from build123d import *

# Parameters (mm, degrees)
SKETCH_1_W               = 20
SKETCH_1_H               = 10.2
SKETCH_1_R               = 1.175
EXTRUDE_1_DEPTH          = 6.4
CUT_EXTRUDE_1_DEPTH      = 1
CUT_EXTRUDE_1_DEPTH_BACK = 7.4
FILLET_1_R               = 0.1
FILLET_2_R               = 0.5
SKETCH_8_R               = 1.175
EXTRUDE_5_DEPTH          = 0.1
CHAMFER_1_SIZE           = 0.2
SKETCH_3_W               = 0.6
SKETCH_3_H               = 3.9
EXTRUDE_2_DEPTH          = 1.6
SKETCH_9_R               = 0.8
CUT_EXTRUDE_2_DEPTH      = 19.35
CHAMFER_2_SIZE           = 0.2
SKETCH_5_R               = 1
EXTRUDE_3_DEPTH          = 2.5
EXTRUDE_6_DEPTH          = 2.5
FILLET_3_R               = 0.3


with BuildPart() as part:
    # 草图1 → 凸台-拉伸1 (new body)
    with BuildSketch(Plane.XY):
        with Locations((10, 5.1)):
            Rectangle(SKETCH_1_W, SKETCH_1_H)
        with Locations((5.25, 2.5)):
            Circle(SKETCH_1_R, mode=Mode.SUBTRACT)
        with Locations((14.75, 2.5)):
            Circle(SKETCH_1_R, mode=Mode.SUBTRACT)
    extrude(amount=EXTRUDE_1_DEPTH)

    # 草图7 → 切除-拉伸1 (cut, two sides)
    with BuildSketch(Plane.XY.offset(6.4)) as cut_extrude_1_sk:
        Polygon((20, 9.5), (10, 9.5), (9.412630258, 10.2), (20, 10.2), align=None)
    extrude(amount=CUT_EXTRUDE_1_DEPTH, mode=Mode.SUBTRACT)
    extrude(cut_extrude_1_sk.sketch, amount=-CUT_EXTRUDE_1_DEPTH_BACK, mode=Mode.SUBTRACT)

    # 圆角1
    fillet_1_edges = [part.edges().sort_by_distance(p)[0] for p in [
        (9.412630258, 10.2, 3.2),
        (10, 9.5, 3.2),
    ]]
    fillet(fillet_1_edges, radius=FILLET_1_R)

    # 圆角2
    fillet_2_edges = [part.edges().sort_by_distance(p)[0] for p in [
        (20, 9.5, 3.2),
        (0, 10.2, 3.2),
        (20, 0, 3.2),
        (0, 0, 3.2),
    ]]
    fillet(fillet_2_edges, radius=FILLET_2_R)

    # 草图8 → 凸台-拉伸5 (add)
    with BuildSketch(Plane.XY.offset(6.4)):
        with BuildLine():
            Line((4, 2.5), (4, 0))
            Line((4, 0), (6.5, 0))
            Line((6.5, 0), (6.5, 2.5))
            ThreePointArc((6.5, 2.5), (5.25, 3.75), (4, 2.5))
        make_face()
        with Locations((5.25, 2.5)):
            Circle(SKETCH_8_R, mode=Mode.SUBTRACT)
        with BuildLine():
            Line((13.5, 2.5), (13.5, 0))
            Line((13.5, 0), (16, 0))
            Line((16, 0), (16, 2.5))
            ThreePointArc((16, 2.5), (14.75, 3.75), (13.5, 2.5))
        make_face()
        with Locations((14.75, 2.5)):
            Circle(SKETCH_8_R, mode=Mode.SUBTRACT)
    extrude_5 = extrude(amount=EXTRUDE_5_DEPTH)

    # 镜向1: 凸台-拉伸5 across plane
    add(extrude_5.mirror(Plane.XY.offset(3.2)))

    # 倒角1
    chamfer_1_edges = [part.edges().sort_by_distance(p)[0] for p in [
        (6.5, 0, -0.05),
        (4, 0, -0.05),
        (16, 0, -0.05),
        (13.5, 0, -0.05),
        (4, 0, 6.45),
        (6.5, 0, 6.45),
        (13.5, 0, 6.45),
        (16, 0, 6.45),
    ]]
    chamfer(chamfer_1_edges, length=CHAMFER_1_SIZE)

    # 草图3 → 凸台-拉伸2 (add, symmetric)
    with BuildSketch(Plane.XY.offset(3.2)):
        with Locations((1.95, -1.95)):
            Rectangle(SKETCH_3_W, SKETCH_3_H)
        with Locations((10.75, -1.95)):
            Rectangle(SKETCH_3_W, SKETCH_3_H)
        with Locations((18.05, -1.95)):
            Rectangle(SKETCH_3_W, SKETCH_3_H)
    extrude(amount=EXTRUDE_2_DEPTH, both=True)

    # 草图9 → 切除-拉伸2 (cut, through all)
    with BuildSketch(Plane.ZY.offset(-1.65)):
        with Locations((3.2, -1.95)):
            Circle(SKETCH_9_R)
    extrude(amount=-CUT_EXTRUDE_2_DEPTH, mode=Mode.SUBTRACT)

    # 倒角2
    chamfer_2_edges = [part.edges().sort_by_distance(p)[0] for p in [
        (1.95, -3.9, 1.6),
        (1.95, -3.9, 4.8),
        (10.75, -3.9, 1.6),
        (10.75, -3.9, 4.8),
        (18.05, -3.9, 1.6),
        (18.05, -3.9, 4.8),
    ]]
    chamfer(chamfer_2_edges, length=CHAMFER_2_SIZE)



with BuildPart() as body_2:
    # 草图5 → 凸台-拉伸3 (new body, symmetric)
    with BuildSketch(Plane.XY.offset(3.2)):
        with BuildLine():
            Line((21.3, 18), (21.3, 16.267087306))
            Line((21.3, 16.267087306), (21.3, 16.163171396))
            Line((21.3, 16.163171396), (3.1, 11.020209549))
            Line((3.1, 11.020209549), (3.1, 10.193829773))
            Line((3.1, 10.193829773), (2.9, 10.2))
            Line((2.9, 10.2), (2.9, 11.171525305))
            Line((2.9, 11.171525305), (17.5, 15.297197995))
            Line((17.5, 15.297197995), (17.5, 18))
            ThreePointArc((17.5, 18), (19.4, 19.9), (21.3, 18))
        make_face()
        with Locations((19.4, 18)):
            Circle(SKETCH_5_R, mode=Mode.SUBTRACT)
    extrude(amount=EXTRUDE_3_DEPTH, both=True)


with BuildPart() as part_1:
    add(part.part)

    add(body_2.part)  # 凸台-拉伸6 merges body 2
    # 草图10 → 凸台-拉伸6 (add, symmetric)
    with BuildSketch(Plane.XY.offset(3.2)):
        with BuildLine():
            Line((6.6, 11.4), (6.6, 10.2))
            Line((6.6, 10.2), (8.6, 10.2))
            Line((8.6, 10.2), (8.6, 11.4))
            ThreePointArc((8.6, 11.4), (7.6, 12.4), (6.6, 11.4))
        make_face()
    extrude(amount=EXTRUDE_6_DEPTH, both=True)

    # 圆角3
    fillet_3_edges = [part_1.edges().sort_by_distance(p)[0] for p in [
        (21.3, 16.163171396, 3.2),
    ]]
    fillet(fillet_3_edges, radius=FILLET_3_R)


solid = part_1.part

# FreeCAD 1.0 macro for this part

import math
import FreeCAD as App
import Part
import Sketcher
Q = App.Units.Quantity


def edges_at(feature, points):
    """Names of the edges that pass closest to the given points."""
    edges = feature.Shape.Edges
    near = lambda p: min(range(len(edges)), key=lambda i: edges[i].distToShape(Part.Vertex(*p))[0])
    return sorted({f"Edge{near(p) + 1}" for p in points})


def add_polygon(sketch, points):
    """Adds a closed chain of lines whose ends are joined by coincident constraints."""
    first, n = sketch.GeometryCount, len(points)
    for a, b in zip(points, points[1:] + points[:1]):
        sketch.addGeometry(Part.LineSegment(App.Vector(*a, 0), App.Vector(*b, 0)), False)
    for i in range(n):
        sketch.addConstraint(Sketcher.Constraint("Coincident", first + i, 2, first + (i + 1) % n, 1))

doc = App.newDocument("Part")
params = doc.addObject("Spreadsheet::Sheet", "Params")
for row, (alias, value) in enumerate([
    ("sketch1_diameter", "2.35 mm"),
    ("sketch1_width", "20 mm"),
    ("sketch1_height", "10.2 mm"),
    ("pad1_length", "6.4 mm"),
    ("sketch2_width", "10 mm"),
    ("sketch2_height", "0.7 mm"),
    ("fillet_radius", "0.1 mm"),
    ("fillet2_radius", "0.5 mm"),
    ("sketch3_diameter", "2.35 mm"),
    ("sketch3_radius", "1.25 mm"),
    ("pad2_length", "0.1 mm"),
    ("chamfer_size", "0.2 mm"),
    ("sketch4_width", "0.6 mm"),
    ("sketch4_height", "3.9 mm"),
    ("pad3_length", "3.2 mm"),
    ("sketch5_diameter", "1.6 mm"),
    ("chamfer2_size", "0.2 mm"),
    ("sketch6_diameter", "2 mm"),
    ("sketch6_radius", "1.9 mm"),
    ("pad4_length", "5 mm"),
    ("sketch7_radius", "1 mm"),
    ("sketch7_height", "1.2 mm"),
    ("pad5_length", "5 mm"),
    ("fillet3_radius", "0.3 mm"),
], start=1):
    params.set(f"A{row}", alias)
    params.set(f"B{row}", "=" + value)
    params.setAlias(f"B{row}", alias)

body = doc.addObject("PartDesign::Body", "Body")

sketch1 = body.newObject("Sketcher::SketchObject", "Sketch")
sketch1.AttachmentSupport = (doc.getObject("XY_Plane"), [""])
sketch1.MapMode = "FlatFace"
add_polygon(sketch1, [(0, 10.2), (0, 0), (20, 0), (20, 10.2)])
sketch1.addGeometry(Part.Circle(App.Vector(5.25, 2.5, 0), App.Vector(0, 0, 1), 1.175), False)
sketch1.addGeometry(Part.Circle(App.Vector(14.75, 2.5, 0), App.Vector(0, 0, 1), 1.175), False)
sketch1.addConstraint(Sketcher.Constraint("Vertical", 0))
sketch1.addConstraint(Sketcher.Constraint("Horizontal", 1))
sketch1.addConstraint(Sketcher.Constraint("Vertical", 2))
sketch1.addConstraint(Sketcher.Constraint("Horizontal", 3))
sketch1.addConstraint(Sketcher.Constraint("Coincident", 0, 2, -1, 1))
sketch1.addConstraint(Sketcher.Constraint("Equal", 4, 5))
sketch1.addConstraint(Sketcher.Constraint("Horizontal", 4, 3, 5, 3))
sketch1.addConstraint(Sketcher.Constraint("Diameter", 4, 2.35))
sketch1.addConstraint(Sketcher.Constraint("DistanceX", 1, 1, 1, 2, 20.0))
sketch1.addConstraint(Sketcher.Constraint("DistanceY", 0, 2, 0, 1, 10.2))
sketch1.addConstraint(Sketcher.Constraint("DistanceY", -1, 1, 4, 3, 2.5))
sketch1.addConstraint(Sketcher.Constraint("DistanceX", 4, 3, 5, 3, 9.5))
sketch1.addConstraint(Sketcher.Constraint("DistanceX", -1, 1, 4, 3, 5.25))
sketch1.setExpression("Constraints[11]", "Params.sketch1_diameter")
sketch1.setExpression("Constraints[12]", "Params.sketch1_width")
sketch1.setExpression("Constraints[13]", "Params.sketch1_height")
pad1 = body.newObject("PartDesign::Pad", "Pad")
pad1.Profile = sketch1
pad1.setExpression("Length", "Params.pad1_length")

sketch2 = body.newObject("Sketcher::SketchObject", "Sketch001")
sketch2.AttachmentSupport = (doc.getObject("XY_Plane"), [""])
sketch2.MapMode = "FlatFace"
sketch2.AttachmentOffset = App.Placement(App.Vector(0, 0, 6.4), App.Rotation())
add_polygon(sketch2, [(10, 9.5), (20, 9.5), (20, 10.2), (9.41263, 10.2)])
sketch2.addConstraint(Sketcher.Constraint("Horizontal", 0))
sketch2.addConstraint(Sketcher.Constraint("Vertical", 1))
sketch2.addConstraint(Sketcher.Constraint("Horizontal", 2))
sketch2.addConstraint(Sketcher.Constraint("DistanceX", 0, 1, 0, 2, 10.0))
sketch2.addConstraint(Sketcher.Constraint("Angle", 3, Q("-50 deg")))
sketch2.addConstraint(Sketcher.Constraint("DistanceY", 1, 1, 1, 2, 0.7))
sketch2.addConstraint(Sketcher.Constraint("DistanceX", -1, 1, 0, 2, 20.0))
sketch2.addConstraint(Sketcher.Constraint("DistanceY", -1, 1, 0, 2, 9.5))
sketch2.setExpression("Constraints[7]", "Params.sketch2_width")
sketch2.setExpression("Constraints[9]", "Params.sketch2_height")
pocket1 = body.newObject("PartDesign::Pocket", "Pocket")
pocket1.Profile = sketch2
pocket1.Type = "ThroughAll"
pocket1.Midplane = True
doc.recompute()

fillet = body.newObject("PartDesign::Fillet", "Fillet")
fillet.Base = (pocket1, edges_at(pocket1, [(9.413, 10.2, 3.2), (10, 9.5, 3.2)]))
fillet.setExpression("Radius", "Params.fillet_radius")
doc.recompute()

fillet2 = body.newObject("PartDesign::Fillet", "Fillet001")
fillet2.Base = (fillet, edges_at(fillet, [
    (20, 9.5, 3.2),
    (0, 10.2, 3.2),
    (20, 0, 3.2),
    (0, 0, 3.2),
]))
fillet2.setExpression("Radius", "Params.fillet2_radius")

sketch3 = body.newObject("Sketcher::SketchObject", "Sketch002")
sketch3.AttachmentSupport = (doc.getObject("XY_Plane"), [""])
sketch3.MapMode = "FlatFace"
sketch3.AttachmentOffset = App.Placement(App.Vector(0, 0, 6.4), App.Rotation())
sketch3.addGeometry(Part.LineSegment(App.Vector(4, 2.5, 0), App.Vector(4, 0, 0)), False)
sketch3.addGeometry(Part.LineSegment(App.Vector(4, 0, 0), App.Vector(6.5, 0, 0)), False)
sketch3.addGeometry(Part.LineSegment(App.Vector(6.5, 0, 0), App.Vector(6.5, 2.5, 0)), False)
sketch3.addGeometry(Part.ArcOfCircle(Part.Circle(App.Vector(5.25, 2.5, 0), App.Vector(0, 0, 1), 1.25), math.radians(0), math.radians(180)), False)
sketch3.addGeometry(Part.Circle(App.Vector(5.25, 2.5, 0), App.Vector(0, 0, 1), 1.175), False)
sketch3.addGeometry(Part.LineSegment(App.Vector(13.5, 2.5, 0), App.Vector(13.5, 0, 0)), False)
sketch3.addGeometry(Part.LineSegment(App.Vector(13.5, 0, 0), App.Vector(16, 0, 0)), False)
sketch3.addGeometry(Part.LineSegment(App.Vector(16, 0, 0), App.Vector(16, 2.5, 0)), False)
sketch3.addGeometry(Part.ArcOfCircle(Part.Circle(App.Vector(14.75, 2.5, 0), App.Vector(0, 0, 1), 1.25), math.radians(0), math.radians(180)), False)
sketch3.addGeometry(Part.Circle(App.Vector(14.75, 2.5, 0), App.Vector(0, 0, 1), 1.175), False)
sketch3.addConstraint(Sketcher.Constraint("Coincident", 0, 2, 1, 1))
sketch3.addConstraint(Sketcher.Constraint("Coincident", 1, 2, 2, 1))
sketch3.addConstraint(Sketcher.Constraint("Tangent", 2, 2, 3, 1))
sketch3.addConstraint(Sketcher.Constraint("Tangent", 3, 2, 0, 1))
sketch3.addConstraint(Sketcher.Constraint("Coincident", 5, 2, 6, 1))
sketch3.addConstraint(Sketcher.Constraint("Coincident", 6, 2, 7, 1))
sketch3.addConstraint(Sketcher.Constraint("Tangent", 7, 2, 8, 1))
sketch3.addConstraint(Sketcher.Constraint("Tangent", 8, 2, 5, 1))
sketch3.addConstraint(Sketcher.Constraint("Vertical", 0))
sketch3.addConstraint(Sketcher.Constraint("Horizontal", 1))
sketch3.addConstraint(Sketcher.Constraint("Vertical", 2))
sketch3.addConstraint(Sketcher.Constraint("Vertical", 5))
sketch3.addConstraint(Sketcher.Constraint("Horizontal", 6))
sketch3.addConstraint(Sketcher.Constraint("Vertical", 7))
sketch3.addConstraint(Sketcher.Constraint("Coincident", 4, 3, 3, 3))
sketch3.addConstraint(Sketcher.Constraint("Coincident", 9, 3, 8, 3))
sketch3.addConstraint(Sketcher.Constraint("Equal", 3, 8))
sketch3.addConstraint(Sketcher.Constraint("Equal", 4, 9))
sketch3.addConstraint(Sketcher.Constraint("PointOnObject", 0, 2, -1))
sketch3.addConstraint(Sketcher.Constraint("PointOnObject", 5, 2, -1))
sketch3.addConstraint(Sketcher.Constraint("Horizontal", 4, 3, 8, 3))
sketch3.addConstraint(Sketcher.Constraint("Equal", 6, 0))
sketch3.addConstraint(Sketcher.Constraint("Diameter", 4, 2.35))
sketch3.addConstraint(Sketcher.Constraint("Radius", 3, 1.25))
sketch3.addConstraint(Sketcher.Constraint("DistanceX", -1, 1, 0, 2, 4.0))
sketch3.addConstraint(Sketcher.Constraint("DistanceX", -1, 1, 6, 2, 16.0))
sketch3.setExpression("Constraints[22]", "Params.sketch3_diameter")
sketch3.setExpression("Constraints[23]", "Params.sketch3_radius")
pad2 = body.newObject("PartDesign::Pad", "Pad001")
pad2.Profile = sketch3
pad2.setExpression("Length", "Params.pad2_length")
doc.recompute()

datumplane = body.newObject("PartDesign::Plane", "DatumPlane")
datumplane.AttachmentSupport = (doc.getObject("XY_Plane"), [""])
datumplane.MapMode = "FlatFace"
datumplane.AttachmentOffset = App.Placement(App.Vector(0, 0, 3.2), App.Rotation())
mirrored = body.newObject("PartDesign::Mirrored", "Mirrored")
mirrored.Originals = [pad2]
mirrored.MirrorPlane = (datumplane, [""])
body.Tip = mirrored
doc.recompute()

chamfer = body.newObject("PartDesign::Chamfer", "Chamfer")
chamfer.Base = (mirrored, edges_at(mirrored, [
    (6.5, 0, -0.05),
    (4, 0, -0.05),
    (16, 0, -0.05),
    (13.5, 0, -0.05),
    (4, 0, 6.45),
    (6.5, 0, 6.45),
    (13.5, 0, 6.45),
    (16, 0, 6.45),
]))
chamfer.setExpression("Size", "Params.chamfer_size")

sketch4 = body.newObject("Sketcher::SketchObject", "Sketch003")
sketch4.AttachmentSupport = (doc.getObject("XY_Plane"), [""])
sketch4.MapMode = "FlatFace"
sketch4.AttachmentOffset = App.Placement(App.Vector(0, 0, 3.2), App.Rotation())
add_polygon(sketch4, [(1.65, 0), (1.65, -3.9), (2.25, -3.9), (2.25, 0)])
add_polygon(sketch4, [(10.45, 0), (10.45, -3.9), (11.05, -3.9), (11.05, 0)])
add_polygon(sketch4, [(17.75, 0), (17.75, -3.9), (18.35, -3.9), (18.35, 0)])
sketch4.addConstraint(Sketcher.Constraint("Vertical", 0))
sketch4.addConstraint(Sketcher.Constraint("Horizontal", 1))
sketch4.addConstraint(Sketcher.Constraint("Vertical", 2))
sketch4.addConstraint(Sketcher.Constraint("Horizontal", 3))
sketch4.addConstraint(Sketcher.Constraint("Vertical", 4))
sketch4.addConstraint(Sketcher.Constraint("Horizontal", 5))
sketch4.addConstraint(Sketcher.Constraint("Vertical", 6))
sketch4.addConstraint(Sketcher.Constraint("Horizontal", 7))
sketch4.addConstraint(Sketcher.Constraint("Vertical", 8))
sketch4.addConstraint(Sketcher.Constraint("Horizontal", 9))
sketch4.addConstraint(Sketcher.Constraint("Vertical", 10))
sketch4.addConstraint(Sketcher.Constraint("Horizontal", 11))
sketch4.addConstraint(Sketcher.Constraint("PointOnObject", 2, 2, -1))
sketch4.addConstraint(Sketcher.Constraint("PointOnObject", 6, 2, -1))
sketch4.addConstraint(Sketcher.Constraint("PointOnObject", 10, 2, -1))
sketch4.addConstraint(Sketcher.Constraint("Horizontal", 1, 2, 4, 2))
sketch4.addConstraint(Sketcher.Constraint("Horizontal", 5, 2, 8, 2))
sketch4.addConstraint(Sketcher.Constraint("Equal", 3, 5))
sketch4.addConstraint(Sketcher.Constraint("Equal", 7, 9))
sketch4.addConstraint(Sketcher.Constraint("DistanceX", 1, 1, 1, 2, 0.6))
sketch4.addConstraint(Sketcher.Constraint("DistanceY", 0, 2, 0, 1, 3.9))
sketch4.addConstraint(Sketcher.Constraint("DistanceX", 1, 2, 4, 2, 8.2))
sketch4.addConstraint(Sketcher.Constraint("DistanceX", 5, 2, 8, 2, 6.7))
sketch4.addConstraint(Sketcher.Constraint("DistanceX", -1, 1, 0, 2, 1.65))
sketch4.setExpression("Constraints[31]", "Params.sketch4_width")
sketch4.setExpression("Constraints[32]", "Params.sketch4_height")
pad3 = body.newObject("PartDesign::Pad", "Pad002")
pad3.Profile = sketch4
pad3.setExpression("Length", "Params.pad3_length")
pad3.Midplane = True

sketch5 = body.newObject("Sketcher::SketchObject", "Sketch004")
sketch5.AttachmentSupport = (doc.getObject("YZ_Plane"), [""])
sketch5.MapMode = "FlatFace"
sketch5.AttachmentOffset = App.Placement(App.Vector(0, 0, 1.65), App.Rotation())
sketch5.addGeometry(Part.Circle(App.Vector(-1.95, 3.2, 0), App.Vector(0, 0, 1), 0.8), False)
sketch5.addConstraint(Sketcher.Constraint("Diameter", 0, 1.6))
sketch5.addConstraint(Sketcher.Constraint("DistanceY", -1, 1, 0, 3, 3.2))
sketch5.addConstraint(Sketcher.Constraint("DistanceX", 0, 3, -1, 1, 1.95))
sketch5.setExpression("Constraints[0]", "Params.sketch5_diameter")
pocket2 = body.newObject("PartDesign::Pocket", "Pocket001")
pocket2.Profile = sketch5
pocket2.Type = "ThroughAll"
pocket2.Reversed = True
doc.recompute()

chamfer2 = body.newObject("PartDesign::Chamfer", "Chamfer001")
chamfer2.Base = (pocket2, edges_at(pocket2, [
    (1.95, -3.9, 1.6),
    (1.95, -3.9, 4.8),
    (10.75, -3.9, 1.6),
    (10.75, -3.9, 4.8),
    (18.05, -3.9, 1.6),
    (18.05, -3.9, 4.8),
]))
chamfer2.setExpression("Size", "Params.chamfer2_size")
body2 = doc.addObject("PartDesign::Body", "Body001")

sketch6 = body2.newObject("Sketcher::SketchObject", "Sketch005")
sketch6.AttachmentSupport = (doc.getObject("XY_Plane001"), [""])
sketch6.MapMode = "FlatFace"
sketch6.AttachmentOffset = App.Placement(App.Vector(0, 0, 3.2), App.Rotation())
sketch6.addGeometry(Part.LineSegment(App.Vector(21.3, 16.163171, 0), App.Vector(21.3, 18, 0)), False)
sketch6.addGeometry(Part.ArcOfCircle(Part.Circle(App.Vector(19.4, 18, 0), App.Vector(0, 0, 1), 1.9), math.radians(0), math.radians(180)), False)
sketch6.addGeometry(Part.LineSegment(App.Vector(17.5, 18, 0), App.Vector(17.5, 15.297198, 0)), False)
sketch6.addGeometry(Part.LineSegment(App.Vector(17.5, 15.297198, 0), App.Vector(2.9, 11.171525, 0)), False)
sketch6.addGeometry(Part.LineSegment(App.Vector(2.9, 11.171525, 0), App.Vector(2.9, 10.2, 0)), False)
sketch6.addGeometry(Part.LineSegment(App.Vector(2.9, 10.2, 0), App.Vector(3.1, 10.19383, 0)), False)
sketch6.addGeometry(Part.LineSegment(App.Vector(3.1, 10.19383, 0), App.Vector(3.1, 11.02021, 0)), False)
sketch6.addGeometry(Part.LineSegment(App.Vector(3.1, 11.02021, 0), App.Vector(21.3, 16.163171, 0)), False)
sketch6.addGeometry(Part.Circle(App.Vector(19.4, 18, 0), App.Vector(0, 0, 1), 1), False)
sketch6.addConstraint(Sketcher.Constraint("Tangent", 0, 2, 1, 1))
sketch6.addConstraint(Sketcher.Constraint("Tangent", 1, 2, 2, 1))
sketch6.addConstraint(Sketcher.Constraint("Coincident", 2, 2, 3, 1))
sketch6.addConstraint(Sketcher.Constraint("Coincident", 3, 2, 4, 1))
sketch6.addConstraint(Sketcher.Constraint("Coincident", 4, 2, 5, 1))
sketch6.addConstraint(Sketcher.Constraint("Coincident", 5, 2, 6, 1))
sketch6.addConstraint(Sketcher.Constraint("Coincident", 6, 2, 7, 1))
sketch6.addConstraint(Sketcher.Constraint("Coincident", 7, 2, 0, 1))
sketch6.addConstraint(Sketcher.Constraint("Vertical", 0))
sketch6.addConstraint(Sketcher.Constraint("Vertical", 2))
sketch6.addConstraint(Sketcher.Constraint("Vertical", 4))
sketch6.addConstraint(Sketcher.Constraint("Vertical", 6))
sketch6.addConstraint(Sketcher.Constraint("Coincident", 8, 3, 1, 3))
sketch6.addConstraint(Sketcher.Constraint("Parallel", 3, 7))
sketch6.addConstraint(Sketcher.Constraint("Diameter", 8, 2.0))
sketch6.addConstraint(Sketcher.Constraint("Radius", 1, 1.9))
sketch6.addConstraint(Sketcher.Constraint("DistanceY", -1, 1, 1, 3, 18.0))
sketch6.addConstraint(Sketcher.Constraint("DistanceX", -1, 1, 1, 3, 19.4))
sketch6.addConstraint(Sketcher.Constraint("DistanceX", -1, 1, 3, 2, 2.9))
sketch6.addConstraint(Sketcher.Constraint("DistanceY", -1, 1, 4, 2, 10.2))
sketch6.addConstraint(Sketcher.Constraint("DistanceX", -1, 1, 5, 2, 3.1))
sketch6.addConstraint(Sketcher.Constraint("DistanceY", 0, 1, 0, 2, 1.836829))
sketch6.addConstraint(Sketcher.Constraint("DistanceY", 6, 1, 6, 2, 0.82638))
sketch6.addConstraint(Sketcher.Constraint("DistanceY", 2, 2, 2, 1, 2.702802))
sketch6.addConstraint(Sketcher.Constraint("DistanceY", 4, 2, 4, 1, 0.971525))
sketch6.setExpression("Constraints[14]", "Params.sketch6_diameter")
sketch6.setExpression("Constraints[15]", "Params.sketch6_radius")
pad4 = body2.newObject("PartDesign::Pad", "Pad003")
pad4.Profile = sketch6
pad4.setExpression("Length", "Params.pad4_length")
pad4.Midplane = True
doc.recompute()

boolean = body.newObject("PartDesign::Boolean", "Boolean")
boolean.Type = "Fuse"
boolean.addObjects([body2])

sketch7 = body.newObject("Sketcher::SketchObject", "Sketch006")
sketch7.AttachmentSupport = (doc.getObject("XY_Plane"), [""])
sketch7.MapMode = "FlatFace"
sketch7.AttachmentOffset = App.Placement(App.Vector(0, 0, 3.2), App.Rotation())
sketch7.addGeometry(Part.LineSegment(App.Vector(6.6, 11.4, 0), App.Vector(6.6, 10.2, 0)), False)
sketch7.addGeometry(Part.LineSegment(App.Vector(6.6, 10.2, 0), App.Vector(8.6, 10.2, 0)), False)
sketch7.addGeometry(Part.LineSegment(App.Vector(8.6, 10.2, 0), App.Vector(8.6, 11.4, 0)), False)
sketch7.addGeometry(Part.ArcOfCircle(Part.Circle(App.Vector(7.6, 11.4, 0), App.Vector(0, 0, 1), 1), math.radians(0), math.radians(180)), False)
sketch7.addConstraint(Sketcher.Constraint("Coincident", 0, 2, 1, 1))
sketch7.addConstraint(Sketcher.Constraint("Coincident", 1, 2, 2, 1))
sketch7.addConstraint(Sketcher.Constraint("Tangent", 2, 2, 3, 1))
sketch7.addConstraint(Sketcher.Constraint("Tangent", 3, 2, 0, 1))
sketch7.addConstraint(Sketcher.Constraint("Vertical", 0))
sketch7.addConstraint(Sketcher.Constraint("Horizontal", 1))
sketch7.addConstraint(Sketcher.Constraint("Vertical", 2))
sketch7.addConstraint(Sketcher.Constraint("Radius", 3, 1.0))
sketch7.addConstraint(Sketcher.Constraint("DistanceY", 0, 2, 0, 1, 1.2))
sketch7.addConstraint(Sketcher.Constraint("DistanceX", -1, 1, 3, 3, 7.6))
sketch7.addConstraint(Sketcher.Constraint("DistanceY", -1, 1, 3, 3, 11.4))
sketch7.setExpression("Constraints[7]", "Params.sketch7_radius")
sketch7.setExpression("Constraints[8]", "Params.sketch7_height")
pad5 = body.newObject("PartDesign::Pad", "Pad004")
pad5.Profile = sketch7
pad5.setExpression("Length", "Params.pad5_length")
pad5.Midplane = True
doc.recompute()

fillet3 = body.newObject("PartDesign::Fillet", "Fillet002")
fillet3.Base = (pad5, edges_at(pad5, [(21.3, 16.163, 3.2)]))
fillet3.setExpression("Radius", "Params.fillet3_radius")

doc.recompute()
